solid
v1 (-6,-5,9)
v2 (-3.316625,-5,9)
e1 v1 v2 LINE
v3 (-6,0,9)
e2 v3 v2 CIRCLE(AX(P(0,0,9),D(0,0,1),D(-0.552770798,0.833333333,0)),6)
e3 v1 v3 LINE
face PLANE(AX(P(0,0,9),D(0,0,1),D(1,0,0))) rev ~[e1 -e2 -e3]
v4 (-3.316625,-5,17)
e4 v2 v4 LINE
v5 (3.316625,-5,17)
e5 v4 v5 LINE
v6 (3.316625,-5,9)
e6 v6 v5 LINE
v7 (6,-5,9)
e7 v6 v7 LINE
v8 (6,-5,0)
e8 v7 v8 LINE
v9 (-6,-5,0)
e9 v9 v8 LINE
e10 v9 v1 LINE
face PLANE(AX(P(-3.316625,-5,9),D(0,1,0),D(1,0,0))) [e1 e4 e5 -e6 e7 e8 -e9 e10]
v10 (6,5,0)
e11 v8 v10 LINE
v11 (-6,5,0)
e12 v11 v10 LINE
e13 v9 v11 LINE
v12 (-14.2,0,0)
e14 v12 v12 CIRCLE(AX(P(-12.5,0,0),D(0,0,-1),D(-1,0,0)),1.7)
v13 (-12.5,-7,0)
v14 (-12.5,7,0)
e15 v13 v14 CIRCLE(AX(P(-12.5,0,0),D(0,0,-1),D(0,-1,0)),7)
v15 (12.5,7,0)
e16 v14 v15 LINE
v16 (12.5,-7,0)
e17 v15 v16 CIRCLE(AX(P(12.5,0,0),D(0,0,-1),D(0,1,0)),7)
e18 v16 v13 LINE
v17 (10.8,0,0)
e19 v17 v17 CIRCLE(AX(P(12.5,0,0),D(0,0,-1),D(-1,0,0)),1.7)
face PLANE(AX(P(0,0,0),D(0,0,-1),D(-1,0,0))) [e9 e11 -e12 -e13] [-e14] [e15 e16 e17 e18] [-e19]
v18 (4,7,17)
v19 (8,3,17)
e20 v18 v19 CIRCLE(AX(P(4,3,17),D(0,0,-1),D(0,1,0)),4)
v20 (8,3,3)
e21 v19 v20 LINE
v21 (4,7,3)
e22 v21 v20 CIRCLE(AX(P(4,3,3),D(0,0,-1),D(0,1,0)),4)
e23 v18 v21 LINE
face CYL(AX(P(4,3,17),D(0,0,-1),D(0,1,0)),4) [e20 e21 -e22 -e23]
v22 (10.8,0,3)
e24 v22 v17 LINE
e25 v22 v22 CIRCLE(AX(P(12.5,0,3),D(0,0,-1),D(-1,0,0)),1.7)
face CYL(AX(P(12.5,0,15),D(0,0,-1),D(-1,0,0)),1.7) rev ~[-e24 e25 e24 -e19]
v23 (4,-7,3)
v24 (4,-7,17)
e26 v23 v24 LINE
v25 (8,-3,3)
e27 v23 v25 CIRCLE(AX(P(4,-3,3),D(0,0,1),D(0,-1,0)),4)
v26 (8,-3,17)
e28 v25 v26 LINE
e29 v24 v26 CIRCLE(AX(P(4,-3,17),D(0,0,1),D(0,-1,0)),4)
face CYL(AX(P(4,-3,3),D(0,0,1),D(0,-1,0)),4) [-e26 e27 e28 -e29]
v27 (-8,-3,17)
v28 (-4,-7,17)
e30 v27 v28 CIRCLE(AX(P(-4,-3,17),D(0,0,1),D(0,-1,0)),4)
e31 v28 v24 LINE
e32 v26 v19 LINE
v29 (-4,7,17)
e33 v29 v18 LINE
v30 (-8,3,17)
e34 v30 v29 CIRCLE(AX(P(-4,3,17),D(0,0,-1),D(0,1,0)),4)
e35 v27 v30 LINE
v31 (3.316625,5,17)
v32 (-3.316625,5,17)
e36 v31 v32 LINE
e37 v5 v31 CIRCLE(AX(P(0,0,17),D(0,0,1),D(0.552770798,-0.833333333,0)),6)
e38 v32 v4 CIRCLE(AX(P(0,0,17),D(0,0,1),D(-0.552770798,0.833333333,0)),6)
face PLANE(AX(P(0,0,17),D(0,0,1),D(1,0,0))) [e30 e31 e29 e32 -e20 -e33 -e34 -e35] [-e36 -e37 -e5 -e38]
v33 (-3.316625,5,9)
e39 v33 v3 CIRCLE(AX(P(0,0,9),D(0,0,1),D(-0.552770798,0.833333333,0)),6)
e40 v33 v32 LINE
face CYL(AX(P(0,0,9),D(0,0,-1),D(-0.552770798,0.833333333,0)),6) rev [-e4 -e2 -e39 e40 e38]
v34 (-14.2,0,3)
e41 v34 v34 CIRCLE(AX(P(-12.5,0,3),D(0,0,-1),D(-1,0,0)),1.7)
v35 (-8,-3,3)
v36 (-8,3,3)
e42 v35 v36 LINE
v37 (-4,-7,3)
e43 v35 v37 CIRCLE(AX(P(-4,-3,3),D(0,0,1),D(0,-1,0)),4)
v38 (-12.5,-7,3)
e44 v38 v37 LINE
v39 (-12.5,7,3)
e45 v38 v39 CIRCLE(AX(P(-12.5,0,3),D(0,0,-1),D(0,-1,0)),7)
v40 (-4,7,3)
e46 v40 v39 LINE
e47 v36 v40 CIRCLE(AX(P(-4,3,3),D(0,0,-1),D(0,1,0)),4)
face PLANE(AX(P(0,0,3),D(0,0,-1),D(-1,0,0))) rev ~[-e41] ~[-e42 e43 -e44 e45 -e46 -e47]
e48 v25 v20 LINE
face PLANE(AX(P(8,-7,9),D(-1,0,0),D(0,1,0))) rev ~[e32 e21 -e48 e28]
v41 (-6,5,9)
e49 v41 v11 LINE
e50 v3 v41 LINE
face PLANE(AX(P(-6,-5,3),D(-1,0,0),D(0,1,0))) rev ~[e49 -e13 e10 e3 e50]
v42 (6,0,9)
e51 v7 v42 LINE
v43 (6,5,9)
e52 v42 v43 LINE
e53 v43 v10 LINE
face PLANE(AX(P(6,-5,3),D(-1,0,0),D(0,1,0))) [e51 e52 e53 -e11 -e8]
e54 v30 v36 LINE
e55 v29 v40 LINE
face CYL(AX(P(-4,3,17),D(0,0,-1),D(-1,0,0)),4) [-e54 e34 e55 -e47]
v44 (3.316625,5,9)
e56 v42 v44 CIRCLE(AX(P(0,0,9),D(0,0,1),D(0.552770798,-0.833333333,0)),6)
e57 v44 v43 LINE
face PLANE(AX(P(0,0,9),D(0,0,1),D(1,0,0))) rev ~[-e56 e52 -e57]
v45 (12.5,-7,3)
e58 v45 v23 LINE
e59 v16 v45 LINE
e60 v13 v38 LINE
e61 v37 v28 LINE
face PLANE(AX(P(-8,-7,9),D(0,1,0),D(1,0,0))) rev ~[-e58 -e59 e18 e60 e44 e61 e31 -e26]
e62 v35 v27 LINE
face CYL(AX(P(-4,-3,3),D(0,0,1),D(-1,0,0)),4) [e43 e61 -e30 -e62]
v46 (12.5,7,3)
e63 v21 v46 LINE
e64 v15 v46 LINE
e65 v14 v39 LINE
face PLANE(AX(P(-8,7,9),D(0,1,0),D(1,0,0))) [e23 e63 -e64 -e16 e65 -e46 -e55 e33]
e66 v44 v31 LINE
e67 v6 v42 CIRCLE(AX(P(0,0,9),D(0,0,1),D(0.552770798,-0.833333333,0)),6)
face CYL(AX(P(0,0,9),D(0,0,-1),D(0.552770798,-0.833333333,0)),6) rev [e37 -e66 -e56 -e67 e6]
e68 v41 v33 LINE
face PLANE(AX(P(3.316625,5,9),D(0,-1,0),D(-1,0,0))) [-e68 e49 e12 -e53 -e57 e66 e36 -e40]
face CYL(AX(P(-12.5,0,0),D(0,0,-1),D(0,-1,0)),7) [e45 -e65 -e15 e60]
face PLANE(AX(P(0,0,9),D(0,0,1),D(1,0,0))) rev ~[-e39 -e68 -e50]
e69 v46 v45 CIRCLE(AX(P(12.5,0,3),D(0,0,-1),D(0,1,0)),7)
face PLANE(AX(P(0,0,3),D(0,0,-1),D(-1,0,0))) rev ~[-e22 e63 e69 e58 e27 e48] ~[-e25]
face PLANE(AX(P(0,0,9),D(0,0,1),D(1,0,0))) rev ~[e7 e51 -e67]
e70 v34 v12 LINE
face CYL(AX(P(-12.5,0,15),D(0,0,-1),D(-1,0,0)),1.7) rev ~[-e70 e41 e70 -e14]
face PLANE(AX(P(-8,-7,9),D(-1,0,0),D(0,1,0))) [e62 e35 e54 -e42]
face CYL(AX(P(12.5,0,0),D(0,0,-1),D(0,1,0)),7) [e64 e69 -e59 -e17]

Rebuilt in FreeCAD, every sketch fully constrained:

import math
import FreeCAD as App
import Part
import Sketcher
Q = App.Units.Quantity


def edges_at(feature, points):
    """Names of the edges that pass closest to the given points."""
    edges = feature.Shape.Edges
    near = lambda p: min(range(len(edges)), key=lambda i: edges[i].distToShape(Part.Vertex(*p))[0])
    return sorted({f"Edge{near(p) + 1}" for p in points})

doc = App.newDocument("Part")
body = doc.addObject("PartDesign::Body", "Body")

sketch1 = body.newObject("Sketcher::SketchObject", "Sketch")
sketch1.AttachmentSupport = (doc.getObject("XY_Plane"), [""])
sketch1.MapMode = "FlatFace"
sketch1.addGeometry(Part.LineSegment(App.Vector(12.5, 7, 0), App.Vector(-12.5, 7, 0)), False)
sketch1.addGeometry(Part.ArcOfCircle(Part.Circle(App.Vector(-12.5, 0, 0), App.Vector(0, 0, 1), 7), math.radians(90), math.radians(270)), False)
sketch1.addGeometry(Part.LineSegment(App.Vector(-12.5, -7, 0), App.Vector(12.5, -7, 0)), False)
sketch1.addGeometry(Part.ArcOfCircle(Part.Circle(App.Vector(12.5, 0, 0), App.Vector(0, 0, 1), 7), math.radians(-90), math.radians(90)), False)
sketch1.addGeometry(Part.LineSegment(App.Vector(-6, -5, 0), App.Vector(-6, 5, 0)), False)
sketch1.addGeometry(Part.LineSegment(App.Vector(-6, 5, 0), App.Vector(6, 5, 0)), False)
sketch1.addGeometry(Part.LineSegment(App.Vector(6, 5, 0), App.Vector(6, -5, 0)), False)
sketch1.addGeometry(Part.LineSegment(App.Vector(6, -5, 0), App.Vector(-6, -5, 0)), False)
sketch1.addConstraint(Sketcher.Constraint("Tangent", 0, 2, 1, 1))
sketch1.addConstraint(Sketcher.Constraint("Tangent", 1, 2, 2, 1))
sketch1.addConstraint(Sketcher.Constraint("Tangent", 2, 2, 3, 1))
sketch1.addConstraint(Sketcher.Constraint("Tangent", 3, 2, 0, 1))
sketch1.addConstraint(Sketcher.Constraint("Coincident", 4, 2, 5, 1))
sketch1.addConstraint(Sketcher.Constraint("Coincident", 5, 2, 6, 1))
sketch1.addConstraint(Sketcher.Constraint("Coincident", 6, 2, 7, 1))
sketch1.addConstraint(Sketcher.Constraint("Coincident", 7, 2, 4, 1))
sketch1.addConstraint(Sketcher.Constraint("Horizontal", 0))
sketch1.addConstraint(Sketcher.Constraint("Horizontal", 2))
sketch1.addConstraint(Sketcher.Constraint("Vertical", 4))
sketch1.addConstraint(Sketcher.Constraint("Horizontal", 5))
sketch1.addConstraint(Sketcher.Constraint("Vertical", 6))
sketch1.addConstraint(Sketcher.Constraint("Horizontal", 7))
sketch1.addConstraint(Sketcher.Constraint("Symmetric", 1, 3, 3, 3, -1, 1))
sketch1.addConstraint(Sketcher.Constraint("Symmetric", 4, 2, 6, 2, -1, 1))
sketch1.addConstraint(Sketcher.Constraint("Radius", 1, Q("7 mm")))
sketch1.addConstraint(Sketcher.Constraint("DistanceX", 0, 2, 0, 1, Q("25 mm")))
sketch1.addConstraint(Sketcher.Constraint("DistanceX", 5, 1, 5, 2, Q("12 mm")))
sketch1.addConstraint(Sketcher.Constraint("DistanceY", 4, 1, 4, 2, Q("10 mm")))
pad1 = body.newObject("PartDesign::Pad", "Pad")
pad1.Profile = sketch1
pad1.Length = 3

sketch2 = body.newObject("Sketcher::SketchObject", "Sketch001")
sketch2.AttachmentSupport = (doc.getObject("XY_Plane"), [""])
sketch2.MapMode = "FlatFace"
sketch2.AttachmentOffset = App.Placement(App.Vector(0, 0, 3), App.Rotation())
sketch2.addGeometry(Part.LineSegment(App.Vector(-8, 7, 0), App.Vector(-8, -7, 0)), False)
sketch2.addGeometry(Part.LineSegment(App.Vector(-8, -7, 0), App.Vector(8, -7, 0)), False)
sketch2.addGeometry(Part.LineSegment(App.Vector(8, -7, 0), App.Vector(8, 7, 0)), False)
sketch2.addGeometry(Part.LineSegment(App.Vector(8, 7, 0), App.Vector(-8, 7, 0)), False)
sketch2.addGeometry(Part.LineSegment(App.Vector(6, -5, 0), App.Vector(-6, -5, 0)), False)
sketch2.addGeometry(Part.LineSegment(App.Vector(-6, -5, 0), App.Vector(-6, 5, 0)), False)
sketch2.addGeometry(Part.LineSegment(App.Vector(-6, 5, 0), App.Vector(6, 5, 0)), False)
sketch2.addGeometry(Part.LineSegment(App.Vector(6, 5, 0), App.Vector(6, -5, 0)), False)
sketch2.addConstraint(Sketcher.Constraint("Coincident", 0, 2, 1, 1))
sketch2.addConstraint(Sketcher.Constraint("Coincident", 1, 2, 2, 1))
sketch2.addConstraint(Sketcher.Constraint("Coincident", 2, 2, 3, 1))
sketch2.addConstraint(Sketcher.Constraint("Coincident", 3, 2, 0, 1))
sketch2.addConstraint(Sketcher.Constraint("Coincident", 4, 2, 5, 1))
sketch2.addConstraint(Sketcher.Constraint("Coincident", 5, 2, 6, 1))
sketch2.addConstraint(Sketcher.Constraint("Coincident", 6, 2, 7, 1))
sketch2.addConstraint(Sketcher.Constraint("Coincident", 7, 2, 4, 1))
sketch2.addConstraint(Sketcher.Constraint("Vertical", 0))
sketch2.addConstraint(Sketcher.Constraint("Horizontal", 1))
sketch2.addConstraint(Sketcher.Constraint("Vertical", 2))
sketch2.addConstraint(Sketcher.Constraint("Horizontal", 3))
sketch2.addConstraint(Sketcher.Constraint("Horizontal", 4))
sketch2.addConstraint(Sketcher.Constraint("Vertical", 5))
sketch2.addConstraint(Sketcher.Constraint("Horizontal", 6))
sketch2.addConstraint(Sketcher.Constraint("Vertical", 7))
sketch2.addConstraint(Sketcher.Constraint("Symmetric", 0, 2, 2, 2, -1, 1))
sketch2.addConstraint(Sketcher.Constraint("Symmetric", 4, 2, 6, 2, -1, 1))
sketch2.addConstraint(Sketcher.Constraint("DistanceX", 1, 1, 1, 2, Q("16 mm")))
sketch2.addConstraint(Sketcher.Constraint("DistanceX", 4, 2, 4, 1, Q("12 mm")))
sketch2.addConstraint(Sketcher.Constraint("DistanceY", 0, 2, 0, 1, Q("14 mm")))
sketch2.addConstraint(Sketcher.Constraint("DistanceY", 5, 1, 5, 2, Q("10 mm")))
pad2 = body.newObject("PartDesign::Pad", "Pad001")
pad2.Profile = sketch2
pad2.Length = 6

sketch3 = body.newObject("Sketcher::SketchObject", "Sketch002")
sketch3.AttachmentSupport = (doc.getObject("XY_Plane"), [""])
sketch3.MapMode = "FlatFace"
sketch3.AttachmentOffset = App.Placement(App.Vector(0, 0, 9), App.Rotation())
sketch3.addGeometry(Part.LineSegment(App.Vector(-8, 7, 0), App.Vector(-8, -7, 0)), False)
sketch3.addGeometry(Part.LineSegment(App.Vector(-8, -7, 0), App.Vector(8, -7, 0)), False)
sketch3.addGeometry(Part.LineSegment(App.Vector(8, -7, 0), App.Vector(8, 7, 0)), False)
sketch3.addGeometry(Part.LineSegment(App.Vector(8, 7, 0), App.Vector(-8, 7, 0)), False)
sketch3.addGeometry(Part.LineSegment(App.Vector(-3.316625, 5, 0), App.Vector(3.316625, 5, 0)), False)
sketch3.addGeometry(Part.ArcOfCircle(Part.Circle(App.Vector(0, 0, 0), App.Vector(0, 0, 1), 6), math.radians(-56.44269), math.radians(56.44269)), False)
sketch3.addGeometry(Part.LineSegment(App.Vector(3.316625, -5, 0), App.Vector(-3.316625, -5, 0)), False)
sketch3.addGeometry(Part.ArcOfCircle(Part.Circle(App.Vector(0, 0, 0), App.Vector(0, 0, 1), 6), math.radians(123.55731), math.radians(236.44269)), False)
sketch3.addConstraint(Sketcher.Constraint("Coincident", 0, 2, 1, 1))
sketch3.addConstraint(Sketcher.Constraint("Coincident", 1, 2, 2, 1))
sketch3.addConstraint(Sketcher.Constraint("Coincident", 2, 2, 3, 1))
sketch3.addConstraint(Sketcher.Constraint("Coincident", 3, 2, 0, 1))
sketch3.addConstraint(Sketcher.Constraint("Coincident", 4, 2, 5, 2))
sketch3.addConstraint(Sketcher.Constraint("Coincident", 5, 1, 6, 1))
sketch3.addConstraint(Sketcher.Constraint("Coincident", 6, 2, 7, 2))
sketch3.addConstraint(Sketcher.Constraint("Coincident", 7, 1, 4, 1))
sketch3.addConstraint(Sketcher.Constraint("Vertical", 0))
sketch3.addConstraint(Sketcher.Constraint("Horizontal", 1))
sketch3.addConstraint(Sketcher.Constraint("Vertical", 2))
sketch3.addConstraint(Sketcher.Constraint("Horizontal", 3))
sketch3.addConstraint(Sketcher.Constraint("Horizontal", 4))
sketch3.addConstraint(Sketcher.Constraint("Horizontal", 6))
sketch3.addConstraint(Sketcher.Constraint("Coincident", 5, 3, -1, 1))
sketch3.addConstraint(Sketcher.Constraint("Coincident", 7, 3, -1, 1))
sketch3.addConstraint(Sketcher.Constraint("Equal", 5, 7))
sketch3.addConstraint(Sketcher.Constraint("Symmetric", 0, 2, 2, 2, -1, 1))
sketch3.addConstraint(Sketcher.Constraint("Vertical", 4, 2, 5, 1))
sketch3.addConstraint(Sketcher.Constraint("Radius", 5, Q("6 mm")))
sketch3.addConstraint(Sketcher.Constraint("DistanceX", 1, 1, 1, 2, Q("16 mm")))
sketch3.addConstraint(Sketcher.Constraint("DistanceY", 0, 2, 0, 1, Q("14 mm")))
sketch3.addConstraint(Sketcher.Constraint("DistanceY", -1, 1, 4, 2, Q("5 mm")))
pad3 = body.newObject("PartDesign::Pad", "Pad002")
pad3.Profile = sketch3
pad3.Length = 8

sketch4 = body.newObject("Sketcher::SketchObject", "Sketch003")
sketch4.AttachmentSupport = (doc.getObject("XY_Plane"), [""])
sketch4.MapMode = "FlatFace"
sketch4.AttachmentOffset = App.Placement(App.Vector(0, 0, 3), App.Rotation())
sketch4.addGeometry(Part.Circle(App.Vector(-12.5, 0, 0), App.Vector(0, 0, 1), 1.7), False)
sketch4.addGeometry(Part.Circle(App.Vector(12.5, 0, 0), App.Vector(0, 0, 1), 1.7), False)
sketch4.addConstraint(Sketcher.Constraint("Equal", 0, 1))
sketch4.addConstraint(Sketcher.Constraint("Symmetric", 0, 3, 1, 3, -1, 1))
sketch4.addConstraint(Sketcher.Constraint("PointOnObject", 0, 3, -1))
sketch4.addConstraint(Sketcher.Constraint("Diameter", 0, Q("3.4 mm")))
sketch4.addConstraint(Sketcher.Constraint("DistanceX", 0, 3, 1, 3, Q("25 mm")))
doc.recompute()
hole = body.newObject("PartDesign::Hole", "Hole")
hole.Profile = sketch4
hole.ThreadType = "None"
hole.Diameter = 3.4
hole.DepthType = "Dimension"
hole.Depth = 12
hole.DrillPoint = "Angled"
hole.DrillPointAngle = 118
doc.recompute()

fillet = body.newObject("PartDesign::Fillet", "Fillet")
fillet.Base = (hole, edges_at(hole, [
    (8, -7, 10),
    (8, 7, 10),
    (-8, 7, 10),
    (-8, -7, 10),
]))
fillet.Radius = 4

doc.recompute()
